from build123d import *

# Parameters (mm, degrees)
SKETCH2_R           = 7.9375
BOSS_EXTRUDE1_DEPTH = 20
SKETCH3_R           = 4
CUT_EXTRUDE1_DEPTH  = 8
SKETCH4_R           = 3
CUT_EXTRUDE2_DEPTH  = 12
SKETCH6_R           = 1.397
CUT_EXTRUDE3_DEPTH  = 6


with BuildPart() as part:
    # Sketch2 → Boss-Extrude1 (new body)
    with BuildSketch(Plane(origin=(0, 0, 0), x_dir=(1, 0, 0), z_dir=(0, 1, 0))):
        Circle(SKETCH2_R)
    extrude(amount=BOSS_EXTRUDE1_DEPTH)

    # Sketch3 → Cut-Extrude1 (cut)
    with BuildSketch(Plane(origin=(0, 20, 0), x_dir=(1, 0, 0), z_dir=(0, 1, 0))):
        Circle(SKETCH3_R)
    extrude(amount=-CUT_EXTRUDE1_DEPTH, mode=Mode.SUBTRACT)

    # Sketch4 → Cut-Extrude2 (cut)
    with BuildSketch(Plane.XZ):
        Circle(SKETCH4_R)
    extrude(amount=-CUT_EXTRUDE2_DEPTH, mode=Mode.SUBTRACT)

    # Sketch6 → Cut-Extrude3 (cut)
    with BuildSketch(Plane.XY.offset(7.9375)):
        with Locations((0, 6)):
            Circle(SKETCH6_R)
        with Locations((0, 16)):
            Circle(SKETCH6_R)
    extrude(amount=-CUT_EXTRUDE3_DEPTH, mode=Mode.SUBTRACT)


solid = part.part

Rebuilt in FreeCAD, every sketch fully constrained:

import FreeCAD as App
import Part
import Sketcher

doc = App.newDocument("Part")
body = doc.addObject("PartDesign::Body", "Body")

# Sketch on XZ plane
sketch1 = body.newObject("Sketcher::SketchObject", "Sketch")
sketch1.AttachmentSupport = (doc.getObject("XZ_Plane"), [""])
sketch1.MapMode = "FlatFace"
sketch1.addGeometry(Part.Circle(App.Vector(0, 0, 0), App.Vector(0, 0, 1), 8), False)
sketch1.addConstraint([
    Sketcher.Constraint("Coincident", 0, 3, -1, 1),
    Sketcher.Constraint("Diameter", 0, 15.875),
])
pad1 = body.newObject("PartDesign::Pad", "Pad")
pad1.Profile = sketch1
pad1.Length = 20
pad1.Reversed = True

# Sketch on XZ plane
sketch2 = body.newObject("Sketcher::SketchObject", "Sketch001")
sketch2.AttachmentSupport = (doc.getObject("XZ_Plane"), [""])
sketch2.MapMode = "FlatFace"
sketch2.AttachmentOffset = App.Placement(App.Vector(0, 0, -20), App.Rotation())
sketch2.addGeometry(Part.Circle(App.Vector(0, 0, 0), App.Vector(0, 0, 1), 4), False)
sketch2.addConstraint([
    Sketcher.Constraint("Coincident", 0, 3, -1, 1),
    Sketcher.Constraint("Diameter", 0, 8.0),
])
pocket1 = body.newObject("PartDesign::Pocket", "Pocket")
pocket1.Profile = sketch2
pocket1.Length = 8
pocket1.Reversed = True

# Sketch on XZ plane
sketch3 = body.newObject("Sketcher::SketchObject", "Sketch002")
sketch3.AttachmentSupport = (doc.getObject("XZ_Plane"), [""])
sketch3.MapMode = "FlatFace"
sketch3.addGeometry(Part.Circle(App.Vector(0, 0, 0), App.Vector(0, 0, 1), 3), False)
sketch3.addConstraint([
    Sketcher.Constraint("Coincident", 0, 3, -1, 1),
    Sketcher.Constraint("Diameter", 0, 6.0),
])
pocket2 = body.newObject("PartDesign::Pocket", "Pocket001")
pocket2.Profile = sketch3
pocket2.Length = 12

# Sketch on XY plane
sketch4 = body.newObject("Sketcher::SketchObject", "Sketch003")
sketch4.AttachmentSupport = (doc.getObject("XY_Plane"), [""])
sketch4.MapMode = "FlatFace"
sketch4.AttachmentOffset = App.Placement(App.Vector(0, 0, 7.9375), App.Rotation())
sketch4.addGeometry([
    Part.Circle(App.Vector(0, 6, 0), App.Vector(0, 0, 1), 1.4),
    Part.Circle(App.Vector(0, 16, 0), App.Vector(0, 0, 1), 1.4),
], False)
sketch4.addConstraint([
    Sketcher.Constraint("Equal", 0, 1),
    Sketcher.Constraint("PointOnObject", 0, 3, -2),
    Sketcher.Constraint("PointOnObject", 1, 3, -2),
    Sketcher.Constraint("Diameter", 0, 2.794),
    Sketcher.Constraint("DistanceY", -1, 1, 0, 3, 6.0),
    Sketcher.Constraint("DistanceY", -1, 1, 1, 3, 16.0),
])
pocket3 = body.newObject("PartDesign::Pocket", "Pocket002")
pocket3.Profile = sketch4
pocket3.Length = 6

doc.recompute()
